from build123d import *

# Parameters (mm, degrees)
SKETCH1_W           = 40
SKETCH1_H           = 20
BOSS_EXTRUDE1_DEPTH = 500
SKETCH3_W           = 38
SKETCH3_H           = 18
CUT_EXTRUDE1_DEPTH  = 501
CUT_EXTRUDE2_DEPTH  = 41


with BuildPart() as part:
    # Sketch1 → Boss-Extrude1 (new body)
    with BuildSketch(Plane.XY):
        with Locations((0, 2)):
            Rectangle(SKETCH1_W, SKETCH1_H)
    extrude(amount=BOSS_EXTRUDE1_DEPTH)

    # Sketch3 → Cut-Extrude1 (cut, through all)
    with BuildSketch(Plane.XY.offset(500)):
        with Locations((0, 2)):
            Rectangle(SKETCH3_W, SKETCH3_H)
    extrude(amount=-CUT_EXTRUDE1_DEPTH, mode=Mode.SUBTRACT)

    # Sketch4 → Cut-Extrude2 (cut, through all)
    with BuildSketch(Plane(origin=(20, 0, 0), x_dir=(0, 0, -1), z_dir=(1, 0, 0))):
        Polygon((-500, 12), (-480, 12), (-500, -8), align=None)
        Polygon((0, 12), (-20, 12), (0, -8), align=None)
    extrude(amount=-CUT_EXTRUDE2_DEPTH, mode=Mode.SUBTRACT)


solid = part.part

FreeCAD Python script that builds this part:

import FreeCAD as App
import Part
import Sketcher
from FreeCAD import Vector

doc = App.newDocument("Part")
body = doc.addObject("PartDesign::Body", "Body")

sketch1 = body.newObject("Sketcher::SketchObject", "Sketch")
sketch1.AttachmentSupport = (doc.getObject("XY_Plane"), [""])
sketch1.MapMode = "FlatFace"
sketch1.addGeometry([
    Part.LineSegment(Vector(-20, 12, 0), Vector(-20, -8, 0)),
    Part.LineSegment(Vector(-20, -8, 0), Vector(20, -8, 0)),
    Part.LineSegment(Vector(20, -8, 0), Vector(20, 12, 0)),
    Part.LineSegment(Vector(20, 12, 0), Vector(-20, 12, 0)),
], False)
sketch1.addConstraint([
    Sketcher.Constraint("Coincident", 0, 2, 1, 1),
    Sketcher.Constraint("Coincident", 1, 2, 2, 1),
    Sketcher.Constraint("Coincident", 2, 2, 3, 1),
    Sketcher.Constraint("Coincident", 3, 2, 0, 1),
    Sketcher.Constraint("Vertical", 0),
    Sketcher.Constraint("Horizontal", 1),
    Sketcher.Constraint("Vertical", 2),
    Sketcher.Constraint("Horizontal", 3),
    Sketcher.Constraint("DistanceX", 1, 1, 1, 2, 40.0),
    Sketcher.Constraint("DistanceY", 0, 2, 0, 1, 20.0),
    Sketcher.Constraint("DistanceX", 0, 2, -1, 1, 20.0),
    Sketcher.Constraint("DistanceY", 0, 2, -1, 1, 8.0),
])
pad1 = body.newObject("PartDesign::Pad", "Pad")
pad1.Profile = sketch1
pad1.Length = 500

sketch2 = body.newObject("Sketcher::SketchObject", "Sketch001")
sketch2.AttachmentSupport = (doc.getObject("XY_Plane"), [""])
sketch2.MapMode = "FlatFace"
sketch2.AttachmentOffset = App.Placement(Vector(0, 0, 500), App.Rotation())
sketch2.addGeometry([
    Part.LineSegment(Vector(-19, 11, 0), Vector(-19, -7, 0)),
    Part.LineSegment(Vector(-19, -7, 0), Vector(19, -7, 0)),
    Part.LineSegment(Vector(19, -7, 0), Vector(19, 11, 0)),
    Part.LineSegment(Vector(19, 11, 0), Vector(-19, 11, 0)),
], False)
sketch2.addConstraint([
    Sketcher.Constraint("Coincident", 0, 2, 1, 1),
    Sketcher.Constraint("Coincident", 1, 2, 2, 1),
    Sketcher.Constraint("Coincident", 2, 2, 3, 1),
    Sketcher.Constraint("Coincident", 3, 2, 0, 1),
    Sketcher.Constraint("Vertical", 0),
    Sketcher.Constraint("Horizontal", 1),
    Sketcher.Constraint("Vertical", 2),
    Sketcher.Constraint("Horizontal", 3),
    Sketcher.Constraint("DistanceX", 1, 1, 1, 2, 38.0),
    Sketcher.Constraint("DistanceY", 0, 2, 0, 1, 18.0),
    Sketcher.Constraint("DistanceX", 0, 2, -1, 1, 19.0),
    Sketcher.Constraint("DistanceY", 0, 2, -1, 1, 7.0),
])
pocket1 = body.newObject("PartDesign::Pocket", "Pocket")
pocket1.Profile = sketch2
pocket1.Type = "ThroughAll"

sketch3 = body.newObject("Sketcher::SketchObject", "Sketch002")
sketch3.AttachmentSupport = (doc.getObject("YZ_Plane"), [""])
sketch3.MapMode = "FlatFace"
sketch3.AttachmentOffset = App.Placement(Vector(0, 0, 20), App.Rotation())
sketch3.addGeometry([
    Part.LineSegment(Vector(12, 480, 0), Vector(12, 500, 0)),
    Part.LineSegment(Vector(12, 500, 0), Vector(-8, 500, 0)),
    Part.LineSegment(Vector(-8, 500, 0), Vector(12, 480, 0)),
    Part.LineSegment(Vector(12, 0, 0), Vector(12, 20, 0)),
    Part.LineSegment(Vector(12, 20, 0), Vector(-8, 0, 0)),
    Part.LineSegment(Vector(-8, 0, 0), Vector(12, 0, 0)),
], False)
sketch3.addConstraint([
    Sketcher.Constraint("Coincident", 0, 2, 1, 1),
    Sketcher.Constraint("Coincident", 1, 2, 2, 1),
    Sketcher.Constraint("Coincident", 2, 2, 0, 1),
    Sketcher.Constraint("Coincident", 3, 2, 4, 1),
    Sketcher.Constraint("Coincident", 4, 2, 5, 1),
    Sketcher.Constraint("Coincident", 5, 2, 3, 1),
    Sketcher.Constraint("Vertical", 0),
    Sketcher.Constraint("Horizontal", 1),
    Sketcher.Constraint("Vertical", 3),
    Sketcher.Constraint("Horizontal", 5),
    Sketcher.Constraint("PointOnObject", 4, 2, -1),
    Sketcher.Constraint("Perpendicular", 2, 4),
    Sketcher.Constraint("Vertical", 2, 2, 3, 2),
    Sketcher.Constraint("Vertical", 1, 2, 4, 2),
    Sketcher.Constraint("Equal", 5, 0),
    Sketcher.Constraint("DistanceX", 1, 2, 1, 1, 20.0),
    Sketcher.Constraint("DistanceX", -1, 1, 0, 2, 12.0),
    Sketcher.Constraint("DistanceY", -1, 1, 0, 2, 500.0),
])
pocket2 = body.newObject("PartDesign::Pocket", "Pocket001")
pocket2.Profile = sketch3
pocket2.Type = "ThroughAll"

doc.recompute()
